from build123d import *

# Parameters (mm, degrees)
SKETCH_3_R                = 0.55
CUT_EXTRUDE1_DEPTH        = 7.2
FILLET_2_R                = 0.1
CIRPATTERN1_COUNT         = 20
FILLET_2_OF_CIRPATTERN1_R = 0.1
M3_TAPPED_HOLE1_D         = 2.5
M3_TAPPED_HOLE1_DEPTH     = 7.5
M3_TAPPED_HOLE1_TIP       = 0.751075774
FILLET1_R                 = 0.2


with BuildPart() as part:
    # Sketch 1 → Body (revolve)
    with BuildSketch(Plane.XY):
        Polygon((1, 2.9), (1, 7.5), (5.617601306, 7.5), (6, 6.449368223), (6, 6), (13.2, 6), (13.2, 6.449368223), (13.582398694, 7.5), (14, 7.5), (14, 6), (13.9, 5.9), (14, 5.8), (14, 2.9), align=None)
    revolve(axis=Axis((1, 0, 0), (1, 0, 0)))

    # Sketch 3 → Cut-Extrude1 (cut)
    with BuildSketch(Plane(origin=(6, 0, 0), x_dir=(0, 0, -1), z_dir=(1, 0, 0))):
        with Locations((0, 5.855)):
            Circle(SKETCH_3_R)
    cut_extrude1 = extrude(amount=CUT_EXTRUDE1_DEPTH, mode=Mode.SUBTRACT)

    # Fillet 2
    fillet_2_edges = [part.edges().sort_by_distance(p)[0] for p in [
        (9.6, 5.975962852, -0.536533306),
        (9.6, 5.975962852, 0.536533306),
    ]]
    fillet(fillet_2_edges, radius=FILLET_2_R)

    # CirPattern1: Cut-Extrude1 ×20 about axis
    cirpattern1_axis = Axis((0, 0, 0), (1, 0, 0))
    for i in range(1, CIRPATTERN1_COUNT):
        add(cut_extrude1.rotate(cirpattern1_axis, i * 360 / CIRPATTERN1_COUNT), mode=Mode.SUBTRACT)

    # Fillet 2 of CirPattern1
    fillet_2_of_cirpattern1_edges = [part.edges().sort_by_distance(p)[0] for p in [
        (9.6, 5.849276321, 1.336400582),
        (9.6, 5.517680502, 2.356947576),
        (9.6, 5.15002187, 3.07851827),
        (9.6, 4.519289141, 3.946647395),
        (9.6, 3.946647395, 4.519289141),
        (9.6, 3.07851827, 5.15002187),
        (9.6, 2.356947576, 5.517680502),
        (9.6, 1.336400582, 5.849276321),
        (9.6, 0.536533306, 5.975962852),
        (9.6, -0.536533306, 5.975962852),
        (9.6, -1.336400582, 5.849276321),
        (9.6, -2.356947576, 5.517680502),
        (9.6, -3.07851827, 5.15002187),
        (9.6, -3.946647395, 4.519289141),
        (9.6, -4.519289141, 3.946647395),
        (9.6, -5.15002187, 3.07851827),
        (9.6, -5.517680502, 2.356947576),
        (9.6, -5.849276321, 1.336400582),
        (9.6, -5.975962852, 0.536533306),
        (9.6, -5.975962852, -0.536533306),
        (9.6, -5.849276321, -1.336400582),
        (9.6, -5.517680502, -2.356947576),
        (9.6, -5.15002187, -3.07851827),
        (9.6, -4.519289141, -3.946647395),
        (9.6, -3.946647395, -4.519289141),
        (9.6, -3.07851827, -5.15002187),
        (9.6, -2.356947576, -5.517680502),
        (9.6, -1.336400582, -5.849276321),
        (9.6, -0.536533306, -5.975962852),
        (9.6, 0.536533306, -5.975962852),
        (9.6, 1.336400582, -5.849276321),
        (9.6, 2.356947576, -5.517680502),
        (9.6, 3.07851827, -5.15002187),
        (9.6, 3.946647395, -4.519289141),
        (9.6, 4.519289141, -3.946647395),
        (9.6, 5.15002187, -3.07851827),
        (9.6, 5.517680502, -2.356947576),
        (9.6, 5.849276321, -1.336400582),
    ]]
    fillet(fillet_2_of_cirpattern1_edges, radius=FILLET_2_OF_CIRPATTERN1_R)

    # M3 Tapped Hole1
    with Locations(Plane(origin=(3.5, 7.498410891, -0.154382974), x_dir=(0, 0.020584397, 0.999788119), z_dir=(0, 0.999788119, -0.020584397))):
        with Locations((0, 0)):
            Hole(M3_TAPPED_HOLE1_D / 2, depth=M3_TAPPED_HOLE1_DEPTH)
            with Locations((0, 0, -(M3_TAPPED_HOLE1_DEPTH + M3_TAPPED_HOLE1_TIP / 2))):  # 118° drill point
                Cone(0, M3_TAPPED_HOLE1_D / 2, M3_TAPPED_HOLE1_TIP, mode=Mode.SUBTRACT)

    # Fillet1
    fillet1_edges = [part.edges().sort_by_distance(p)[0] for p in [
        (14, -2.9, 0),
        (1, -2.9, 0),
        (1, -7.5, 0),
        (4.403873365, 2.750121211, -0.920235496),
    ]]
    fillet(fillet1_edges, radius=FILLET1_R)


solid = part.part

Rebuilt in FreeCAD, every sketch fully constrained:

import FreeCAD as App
import Part
import Sketcher
from FreeCAD import Vector
Q = App.Units.Quantity


def edges_at(feature, points):
    """Names of the edges that pass closest to the given points."""
    edges = feature.Shape.Edges
    near = lambda p: min(range(len(edges)), key=lambda i: edges[i].distToShape(Part.Vertex(*p))[0])
    return sorted({f"Edge{near(p) + 1}" for p in points})

doc = App.newDocument("Part")
params = doc.addObject("Spreadsheet::Sheet", "Params")
for row, (alias, value) in enumerate([
    ("sketch1_width", "13 mm"),
    ("sketch1_width2", "7.2 mm"),
    ("sketch1_height", "4.6 mm"),
    ("sketch1_height2", "2.9 mm"),
    ("sketch1_height3", "1.5 mm"),
    ("revolution_angle", "360 deg"),
    ("sketch2_diameter", "1.1 mm"),
    ("pocket1_length", "7.2 mm"),
    ("fillet_radius", "0.1 mm"),
    ("fillet2_radius", "0.1 mm"),
    ("sketch3_diameter", "2.5 mm"),
    ("hole_diameter", "2.5 mm"),
    ("hole_depth", "7.5 mm"),
    ("fillet3_radius", "0.2 mm"),
], start=1):
    params.set(f"A{row}", alias)
    params.set(f"B{row}", "=" + value)
    params.setAlias(f"B{row}", alias)

body = doc.addObject("PartDesign::Body", "Body")

sketch1 = body.newObject("Sketcher::SketchObject", "Sketch")
sketch1.AttachmentSupport = (doc.getObject("XY_Plane"), [""])
sketch1.MapMode = "FlatFace"
sketch1.addGeometry(Part.LineSegment(Vector(1, 7.5, 0), Vector(1, 2.9, 0)), False)
sketch1.addGeometry(Part.LineSegment(Vector(1, 2.9, 0), Vector(14, 2.9, 0)), False)
sketch1.addGeometry(Part.LineSegment(Vector(14, 2.9, 0), Vector(14, 5.8, 0)), False)
sketch1.addGeometry(Part.LineSegment(Vector(14, 5.8, 0), Vector(13.9, 5.9, 0)), False)
sketch1.addGeometry(Part.LineSegment(Vector(13.9, 5.9, 0), Vector(14, 6, 0)), False)
sketch1.addGeometry(Part.LineSegment(Vector(14, 6, 0), Vector(14, 7.5, 0)), False)
sketch1.addGeometry(Part.LineSegment(Vector(14, 7.5, 0), Vector(13.58, 7.5, 0)), False)
sketch1.addGeometry(Part.LineSegment(Vector(13.58, 7.5, 0), Vector(13.2, 6.45, 0)), False)
sketch1.addGeometry(Part.LineSegment(Vector(13.2, 6.45, 0), Vector(13.2, 6, 0)), False)
sketch1.addGeometry(Part.LineSegment(Vector(13.2, 6, 0), Vector(6, 6, 0)), False)
sketch1.addGeometry(Part.LineSegment(Vector(6, 6, 0), Vector(6, 6.45, 0)), False)
sketch1.addGeometry(Part.LineSegment(Vector(6, 6.45, 0), Vector(5.62, 7.5, 0)), False)
sketch1.addGeometry(Part.LineSegment(Vector(5.62, 7.5, 0), Vector(1, 7.5, 0)), False)
sketch1.addConstraint(Sketcher.Constraint("Coincident", 0, 2, 1, 1))
sketch1.addConstraint(Sketcher.Constraint("Coincident", 1, 2, 2, 1))
sketch1.addConstraint(Sketcher.Constraint("Coincident", 2, 2, 3, 1))
sketch1.addConstraint(Sketcher.Constraint("Coincident", 3, 2, 4, 1))
sketch1.addConstraint(Sketcher.Constraint("Coincident", 4, 2, 5, 1))
sketch1.addConstraint(Sketcher.Constraint("Coincident", 5, 2, 6, 1))
sketch1.addConstraint(Sketcher.Constraint("Coincident", 6, 2, 7, 1))
sketch1.addConstraint(Sketcher.Constraint("Coincident", 7, 2, 8, 1))
sketch1.addConstraint(Sketcher.Constraint("Coincident", 8, 2, 9, 1))
sketch1.addConstraint(Sketcher.Constraint("Coincident", 9, 2, 10, 1))
sketch1.addConstraint(Sketcher.Constraint("Coincident", 10, 2, 11, 1))
sketch1.addConstraint(Sketcher.Constraint("Coincident", 11, 2, 12, 1))
sketch1.addConstraint(Sketcher.Constraint("Coincident", 12, 2, 0, 1))
sketch1.addConstraint(Sketcher.Constraint("Vertical", 0))
sketch1.addConstraint(Sketcher.Constraint("Horizontal", 1))
sketch1.addConstraint(Sketcher.Constraint("Vertical", 2))
sketch1.addConstraint(Sketcher.Constraint("Vertical", 5))
sketch1.addConstraint(Sketcher.Constraint("Horizontal", 6))
sketch1.addConstraint(Sketcher.Constraint("Vertical", 8))
sketch1.addConstraint(Sketcher.Constraint("Horizontal", 9))
sketch1.addConstraint(Sketcher.Constraint("Vertical", 10))
sketch1.addConstraint(Sketcher.Constraint("Horizontal", 12))
sketch1.addConstraint(Sketcher.Constraint("Perpendicular", 3, 4))
sketch1.addConstraint(Sketcher.Constraint("Horizontal", 4, 2, 8, 2))
sketch1.addConstraint(Sketcher.Constraint("Horizontal", 7, 2, 10, 2))
sketch1.addConstraint(Sketcher.Constraint("Horizontal", 6, 2, 11, 2))
sketch1.addConstraint(Sketcher.Constraint("Vertical", 2, 2, 4, 2))
sketch1.addConstraint(Sketcher.Constraint("Equal", 3, 4))
sketch1.addConstraint(Sketcher.Constraint("Equal", 7, 11))
sketch1.addConstraint(Sketcher.Constraint("DistanceX", 1, 1, 1, 2, Q("13 mm")))
sketch1.addConstraint(Sketcher.Constraint("Angle", 7, Q("-110 deg")))
sketch1.addConstraint(Sketcher.Constraint("DistanceX", 9, 2, 9, 1, Q("7.2 mm")))
sketch1.addConstraint(Sketcher.Constraint("DistanceY", 0, 2, 0, 1, Q("4.6 mm")))
sketch1.addConstraint(Sketcher.Constraint("DistanceY", 2, 1, 2, 2, Q("2.9 mm")))
sketch1.addConstraint(Sketcher.Constraint("DistanceY", 5, 1, 5, 2, Q("1.5 mm")))
sketch1.addConstraint(Sketcher.Constraint("DistanceX", -1, 1, 0, 2, Q("1 mm")))
sketch1.addConstraint(Sketcher.Constraint("DistanceY", -1, 1, 4, 2, Q("6 mm")))
sketch1.addConstraint(Sketcher.Constraint("DistanceX", -1, 1, 9, 2, Q("6 mm")))
sketch1.addConstraint(Sketcher.Constraint("DistanceX", 6, 2, 6, 1, Q("0.417601 mm")))
sketch1.setExpression("Constraints[29]", "Params.sketch1_width")
sketch1.setExpression("Constraints[31]", "Params.sketch1_width2")
sketch1.setExpression("Constraints[32]", "Params.sketch1_height")
sketch1.setExpression("Constraints[33]", "Params.sketch1_height2")
sketch1.setExpression("Constraints[34]", "Params.sketch1_height3")
revolution = body.newObject("PartDesign::Revolution", "Revolution")
revolution.Profile = sketch1
revolution.ReferenceAxis = (sketch1, ["H_Axis"])
revolution.setExpression("Angle", "Params.revolution_angle")

sketch2 = body.newObject("Sketcher::SketchObject", "Sketch001")
sketch2.AttachmentSupport = (doc.getObject("YZ_Plane"), [""])
sketch2.MapMode = "FlatFace"
sketch2.AttachmentOffset = App.Placement(Vector(0, 0, 6), App.Rotation())
sketch2.addGeometry(Part.Circle(Vector(5.9, 0, 0), Vector(0, 0, 1), 0.6), False)
sketch2.addConstraint(Sketcher.Constraint("PointOnObject", 0, 3, -1))
sketch2.addConstraint(Sketcher.Constraint("Diameter", 0, Q("1.1 mm")))
sketch2.addConstraint(Sketcher.Constraint("DistanceX", -1, 1, 0, 3, Q("5.855 mm")))
sketch2.setExpression("Constraints[1]", "Params.sketch2_diameter")
pocket1 = body.newObject("PartDesign::Pocket", "Pocket")
pocket1.Profile = sketch2
pocket1.setExpression("Length", "Params.pocket1_length")
pocket1.Reversed = True
doc.recompute()

fillet = body.newObject("PartDesign::Fillet", "Fillet")
fillet.Base = (pocket1, edges_at(pocket1, [(9.6, 5.976, -0.537), (9.6, 5.976, 0.537)]))
fillet.setExpression("Radius", "Params.fillet_radius")
doc.recompute()

polarpattern = body.newObject("PartDesign::PolarPattern", "PolarPattern")
polarpattern.Originals = [pocket1]
polarpattern.Axis = (doc.getObject("X_Axis"), [""])
polarpattern.Angle = 360
polarpattern.Occurrences = 20
body.Tip = polarpattern
doc.recompute()

fillet2 = body.newObject("PartDesign::Fillet", "Fillet001")
fillet2.Base = (polarpattern, edges_at(polarpattern, [
    (9.6, 5.849, 1.336),
    (9.6, 5.518, 2.357),
    (9.6, 5.15, 3.079),
    (9.6, 4.519, 3.947),
    (9.6, 3.947, 4.519),
    (9.6, 3.079, 5.15),
    (9.6, 2.357, 5.518),
    (9.6, 1.336, 5.849),
    (9.6, 0.537, 5.976),
    (9.6, -0.537, 5.976),
    (9.6, -1.336, 5.849),
    (9.6, -2.357, 5.518),
    (9.6, -3.079, 5.15),
    (9.6, -3.947, 4.519),
    (9.6, -4.519, 3.947),
    (9.6, -5.15, 3.079),
    (9.6, -5.518, 2.357),
    (9.6, -5.849, 1.336),
    (9.6, -5.976, 0.537),
    (9.6, -5.976, -0.537),
    (9.6, -5.849, -1.336),
    (9.6, -5.518, -2.357),
    (9.6, -5.15, -3.079),
    (9.6, -4.519, -3.947),
    (9.6, -3.947, -4.519),
    (9.6, -3.079, -5.15),
    (9.6, -2.357, -5.518),
    (9.6, -1.336, -5.849),
    (9.6, -0.537, -5.976),
    (9.6, 0.537, -5.976),
    (9.6, 1.336, -5.849),
    (9.6, 2.357, -5.518),
    (9.6, 3.079, -5.15),
    (9.6, 3.947, -4.519),
    (9.6, 4.519, -3.947),
    (9.6, 5.15, -3.079),
    (9.6, 5.518, -2.357),
    (9.6, 5.849, -1.336),
]))
fillet2.setExpression("Radius", "Params.fillet2_radius")

sketch3 = body.newObject("Sketcher::SketchObject", "Sketch002")
sketch3.Placement = App.Placement(Vector(0, 7.498411, -0.154383), App.Rotation(Vector(0, 0.020584397, 0.999788119), Vector(1, 0, 0), Vector(0, 0.999788119, -0.020584397), "ZXY"))
sketch3.addGeometry(Part.Circle(Vector(0, 3.5, 0), Vector(0, 0, 1), 1.2), False)
sketch3.addConstraint(Sketcher.Constraint("PointOnObject", 0, 3, -2))
sketch3.addConstraint(Sketcher.Constraint("Diameter", 0, Q("2.5 mm")))
sketch3.addConstraint(Sketcher.Constraint("DistanceY", -1, 1, 0, 3, Q("3.5 mm")))
sketch3.setExpression("Constraints[1]", "Params.sketch3_diameter")
doc.recompute()
hole = body.newObject("PartDesign::Hole", "Hole")
hole.Profile = sketch3
hole.ThreadType = "None"
hole.setExpression("Diameter", "Params.hole_diameter")
hole.DepthType = "Dimension"
hole.setExpression("Depth", "Params.hole_depth")
hole.DrillPoint = "Angled"
hole.DrillPointAngle = 118
doc.recompute()

fillet3 = body.newObject("PartDesign::Fillet", "Fillet002")
fillet3.Base = (hole, edges_at(hole, [
    (14, -2.9, 0),
    (1, -2.9, 0),
    (1, -7.5, 0),
    (4.404, 2.75, -0.92),
]))
fillet3.setExpression("Radius", "Params.fillet3_radius")

doc.recompute()
